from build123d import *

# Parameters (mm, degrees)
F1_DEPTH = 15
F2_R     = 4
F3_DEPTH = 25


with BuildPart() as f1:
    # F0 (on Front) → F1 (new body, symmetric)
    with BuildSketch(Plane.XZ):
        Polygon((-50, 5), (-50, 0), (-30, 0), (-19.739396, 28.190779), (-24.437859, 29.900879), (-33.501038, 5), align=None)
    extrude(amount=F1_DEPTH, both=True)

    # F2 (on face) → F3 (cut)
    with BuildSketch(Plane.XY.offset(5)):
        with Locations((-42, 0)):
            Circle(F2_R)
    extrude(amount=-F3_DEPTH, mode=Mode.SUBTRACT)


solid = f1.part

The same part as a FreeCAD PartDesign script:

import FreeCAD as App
import Part
import Sketcher
Q = App.Units.Quantity


def add_polygon(sketch, points):
    """Adds a closed chain of lines whose ends are joined by coincident constraints."""
    first, n = sketch.GeometryCount, len(points)
    for a, b in zip(points, points[1:] + points[:1]):
        sketch.addGeometry(Part.LineSegment(App.Vector(*a, 0), App.Vector(*b, 0)), False)
    for i in range(n):
        sketch.addConstraint(Sketcher.Constraint("Coincident", first + i, 2, first + (i + 1) % n, 1))

doc = App.newDocument("Part")
params = doc.addObject("Spreadsheet::Sheet", "Params")
for row, (alias, value) in enumerate([
    ("sketch1_width", "20 mm"),
    ("sketch1_height", "5 mm"),
    ("sketch1_length", "30 mm"),
    ("sketch1_length2", "5 mm"),
    ("pad1_length", "30 mm"),
    ("sketch2_diameter", "8 mm"),
    ("pocket1_length", "25 mm"),
], start=1):
    params.set(f"A{row}", alias)
    params.set(f"B{row}", "=" + value)
    params.setAlias(f"B{row}", alias)

body = doc.addObject("PartDesign::Body", "Body")

sketch1 = doc.addObject("Sketcher::SketchObject", "Sketch")
body.addObject(sketch1)
sketch1.AttachmentSupport = (doc.XZ_Plane, [""])
sketch1.MapMode = "FlatFace"
add_polygon(sketch1, [(-50, 5), (-50, 0), (-30, 0), (-19.7, 28.2), (-24.4, 29.9), (-33.5, 5)])
sketch1.addConstraint(Sketcher.Constraint("Vertical", 0))
sketch1.addConstraint(Sketcher.Constraint("Horizontal", 1))
sketch1.addConstraint(Sketcher.Constraint("Horizontal", 5))
sketch1.addConstraint(Sketcher.Constraint("PointOnObject", 0, 2, -1))
sketch1.addConstraint(Sketcher.Constraint("Perpendicular", 2, 3))
sketch1.addConstraint(Sketcher.Constraint("Perpendicular", 3, 4))
sketch1.addConstraint(Sketcher.Constraint("DistanceX", 1, 1, 1, 2, 20.0))
sketch1.addConstraint(Sketcher.Constraint("DistanceY", 0, 2, 0, 1, 5.0))
sketch1.addConstraint(Sketcher.Constraint("Angle", 2, Q("70.000001 deg")))
sketch1.addConstraint(Sketcher.Constraint("Distance", 2, 30.0))
sketch1.addConstraint(Sketcher.Constraint("Distance", 3, 5.0))
sketch1.addConstraint(Sketcher.Constraint("DistanceX", 0, 2, -1, 1, 50.0))
sketch1.setExpression("Constraints[12]", "Params.sketch1_width")
sketch1.setExpression("Constraints[13]", "Params.sketch1_height")
sketch1.setExpression("Constraints[15]", "Params.sketch1_length")
sketch1.setExpression("Constraints[16]", "Params.sketch1_length2")
pad1 = doc.addObject("PartDesign::Pad", "Pad")
body.addObject(pad1)
pad1.Profile = sketch1
pad1.setExpression("Length", "Params.pad1_length")
pad1.Midplane = True

sketch2 = doc.addObject("Sketcher::SketchObject", "Sketch001")
body.addObject(sketch2)
sketch2.AttachmentSupport = (doc.XY_Plane, [""])
sketch2.MapMode = "FlatFace"
sketch2.AttachmentOffset = App.Placement(App.Vector(0, 0, 5), App.Rotation())
sketch2.addGeometry(Part.Circle(App.Vector(-42, 0, 0), App.Vector(0, 0, 1), 4), False)
sketch2.addConstraint(Sketcher.Constraint("PointOnObject", 0, 3, -1))
sketch2.addConstraint(Sketcher.Constraint("Diameter", 0, 8.0))
sketch2.addConstraint(Sketcher.Constraint("DistanceX", 0, 3, -1, 1, 42.0))
sketch2.setExpression("Constraints[1]", "Params.sketch2_diameter")
pocket1 = doc.addObject("PartDesign::Pocket", "Pocket")
body.addObject(pocket1)
pocket1.Profile = sketch2
pocket1.setExpression("Length", "Params.pocket1_length")

doc.recompute()
